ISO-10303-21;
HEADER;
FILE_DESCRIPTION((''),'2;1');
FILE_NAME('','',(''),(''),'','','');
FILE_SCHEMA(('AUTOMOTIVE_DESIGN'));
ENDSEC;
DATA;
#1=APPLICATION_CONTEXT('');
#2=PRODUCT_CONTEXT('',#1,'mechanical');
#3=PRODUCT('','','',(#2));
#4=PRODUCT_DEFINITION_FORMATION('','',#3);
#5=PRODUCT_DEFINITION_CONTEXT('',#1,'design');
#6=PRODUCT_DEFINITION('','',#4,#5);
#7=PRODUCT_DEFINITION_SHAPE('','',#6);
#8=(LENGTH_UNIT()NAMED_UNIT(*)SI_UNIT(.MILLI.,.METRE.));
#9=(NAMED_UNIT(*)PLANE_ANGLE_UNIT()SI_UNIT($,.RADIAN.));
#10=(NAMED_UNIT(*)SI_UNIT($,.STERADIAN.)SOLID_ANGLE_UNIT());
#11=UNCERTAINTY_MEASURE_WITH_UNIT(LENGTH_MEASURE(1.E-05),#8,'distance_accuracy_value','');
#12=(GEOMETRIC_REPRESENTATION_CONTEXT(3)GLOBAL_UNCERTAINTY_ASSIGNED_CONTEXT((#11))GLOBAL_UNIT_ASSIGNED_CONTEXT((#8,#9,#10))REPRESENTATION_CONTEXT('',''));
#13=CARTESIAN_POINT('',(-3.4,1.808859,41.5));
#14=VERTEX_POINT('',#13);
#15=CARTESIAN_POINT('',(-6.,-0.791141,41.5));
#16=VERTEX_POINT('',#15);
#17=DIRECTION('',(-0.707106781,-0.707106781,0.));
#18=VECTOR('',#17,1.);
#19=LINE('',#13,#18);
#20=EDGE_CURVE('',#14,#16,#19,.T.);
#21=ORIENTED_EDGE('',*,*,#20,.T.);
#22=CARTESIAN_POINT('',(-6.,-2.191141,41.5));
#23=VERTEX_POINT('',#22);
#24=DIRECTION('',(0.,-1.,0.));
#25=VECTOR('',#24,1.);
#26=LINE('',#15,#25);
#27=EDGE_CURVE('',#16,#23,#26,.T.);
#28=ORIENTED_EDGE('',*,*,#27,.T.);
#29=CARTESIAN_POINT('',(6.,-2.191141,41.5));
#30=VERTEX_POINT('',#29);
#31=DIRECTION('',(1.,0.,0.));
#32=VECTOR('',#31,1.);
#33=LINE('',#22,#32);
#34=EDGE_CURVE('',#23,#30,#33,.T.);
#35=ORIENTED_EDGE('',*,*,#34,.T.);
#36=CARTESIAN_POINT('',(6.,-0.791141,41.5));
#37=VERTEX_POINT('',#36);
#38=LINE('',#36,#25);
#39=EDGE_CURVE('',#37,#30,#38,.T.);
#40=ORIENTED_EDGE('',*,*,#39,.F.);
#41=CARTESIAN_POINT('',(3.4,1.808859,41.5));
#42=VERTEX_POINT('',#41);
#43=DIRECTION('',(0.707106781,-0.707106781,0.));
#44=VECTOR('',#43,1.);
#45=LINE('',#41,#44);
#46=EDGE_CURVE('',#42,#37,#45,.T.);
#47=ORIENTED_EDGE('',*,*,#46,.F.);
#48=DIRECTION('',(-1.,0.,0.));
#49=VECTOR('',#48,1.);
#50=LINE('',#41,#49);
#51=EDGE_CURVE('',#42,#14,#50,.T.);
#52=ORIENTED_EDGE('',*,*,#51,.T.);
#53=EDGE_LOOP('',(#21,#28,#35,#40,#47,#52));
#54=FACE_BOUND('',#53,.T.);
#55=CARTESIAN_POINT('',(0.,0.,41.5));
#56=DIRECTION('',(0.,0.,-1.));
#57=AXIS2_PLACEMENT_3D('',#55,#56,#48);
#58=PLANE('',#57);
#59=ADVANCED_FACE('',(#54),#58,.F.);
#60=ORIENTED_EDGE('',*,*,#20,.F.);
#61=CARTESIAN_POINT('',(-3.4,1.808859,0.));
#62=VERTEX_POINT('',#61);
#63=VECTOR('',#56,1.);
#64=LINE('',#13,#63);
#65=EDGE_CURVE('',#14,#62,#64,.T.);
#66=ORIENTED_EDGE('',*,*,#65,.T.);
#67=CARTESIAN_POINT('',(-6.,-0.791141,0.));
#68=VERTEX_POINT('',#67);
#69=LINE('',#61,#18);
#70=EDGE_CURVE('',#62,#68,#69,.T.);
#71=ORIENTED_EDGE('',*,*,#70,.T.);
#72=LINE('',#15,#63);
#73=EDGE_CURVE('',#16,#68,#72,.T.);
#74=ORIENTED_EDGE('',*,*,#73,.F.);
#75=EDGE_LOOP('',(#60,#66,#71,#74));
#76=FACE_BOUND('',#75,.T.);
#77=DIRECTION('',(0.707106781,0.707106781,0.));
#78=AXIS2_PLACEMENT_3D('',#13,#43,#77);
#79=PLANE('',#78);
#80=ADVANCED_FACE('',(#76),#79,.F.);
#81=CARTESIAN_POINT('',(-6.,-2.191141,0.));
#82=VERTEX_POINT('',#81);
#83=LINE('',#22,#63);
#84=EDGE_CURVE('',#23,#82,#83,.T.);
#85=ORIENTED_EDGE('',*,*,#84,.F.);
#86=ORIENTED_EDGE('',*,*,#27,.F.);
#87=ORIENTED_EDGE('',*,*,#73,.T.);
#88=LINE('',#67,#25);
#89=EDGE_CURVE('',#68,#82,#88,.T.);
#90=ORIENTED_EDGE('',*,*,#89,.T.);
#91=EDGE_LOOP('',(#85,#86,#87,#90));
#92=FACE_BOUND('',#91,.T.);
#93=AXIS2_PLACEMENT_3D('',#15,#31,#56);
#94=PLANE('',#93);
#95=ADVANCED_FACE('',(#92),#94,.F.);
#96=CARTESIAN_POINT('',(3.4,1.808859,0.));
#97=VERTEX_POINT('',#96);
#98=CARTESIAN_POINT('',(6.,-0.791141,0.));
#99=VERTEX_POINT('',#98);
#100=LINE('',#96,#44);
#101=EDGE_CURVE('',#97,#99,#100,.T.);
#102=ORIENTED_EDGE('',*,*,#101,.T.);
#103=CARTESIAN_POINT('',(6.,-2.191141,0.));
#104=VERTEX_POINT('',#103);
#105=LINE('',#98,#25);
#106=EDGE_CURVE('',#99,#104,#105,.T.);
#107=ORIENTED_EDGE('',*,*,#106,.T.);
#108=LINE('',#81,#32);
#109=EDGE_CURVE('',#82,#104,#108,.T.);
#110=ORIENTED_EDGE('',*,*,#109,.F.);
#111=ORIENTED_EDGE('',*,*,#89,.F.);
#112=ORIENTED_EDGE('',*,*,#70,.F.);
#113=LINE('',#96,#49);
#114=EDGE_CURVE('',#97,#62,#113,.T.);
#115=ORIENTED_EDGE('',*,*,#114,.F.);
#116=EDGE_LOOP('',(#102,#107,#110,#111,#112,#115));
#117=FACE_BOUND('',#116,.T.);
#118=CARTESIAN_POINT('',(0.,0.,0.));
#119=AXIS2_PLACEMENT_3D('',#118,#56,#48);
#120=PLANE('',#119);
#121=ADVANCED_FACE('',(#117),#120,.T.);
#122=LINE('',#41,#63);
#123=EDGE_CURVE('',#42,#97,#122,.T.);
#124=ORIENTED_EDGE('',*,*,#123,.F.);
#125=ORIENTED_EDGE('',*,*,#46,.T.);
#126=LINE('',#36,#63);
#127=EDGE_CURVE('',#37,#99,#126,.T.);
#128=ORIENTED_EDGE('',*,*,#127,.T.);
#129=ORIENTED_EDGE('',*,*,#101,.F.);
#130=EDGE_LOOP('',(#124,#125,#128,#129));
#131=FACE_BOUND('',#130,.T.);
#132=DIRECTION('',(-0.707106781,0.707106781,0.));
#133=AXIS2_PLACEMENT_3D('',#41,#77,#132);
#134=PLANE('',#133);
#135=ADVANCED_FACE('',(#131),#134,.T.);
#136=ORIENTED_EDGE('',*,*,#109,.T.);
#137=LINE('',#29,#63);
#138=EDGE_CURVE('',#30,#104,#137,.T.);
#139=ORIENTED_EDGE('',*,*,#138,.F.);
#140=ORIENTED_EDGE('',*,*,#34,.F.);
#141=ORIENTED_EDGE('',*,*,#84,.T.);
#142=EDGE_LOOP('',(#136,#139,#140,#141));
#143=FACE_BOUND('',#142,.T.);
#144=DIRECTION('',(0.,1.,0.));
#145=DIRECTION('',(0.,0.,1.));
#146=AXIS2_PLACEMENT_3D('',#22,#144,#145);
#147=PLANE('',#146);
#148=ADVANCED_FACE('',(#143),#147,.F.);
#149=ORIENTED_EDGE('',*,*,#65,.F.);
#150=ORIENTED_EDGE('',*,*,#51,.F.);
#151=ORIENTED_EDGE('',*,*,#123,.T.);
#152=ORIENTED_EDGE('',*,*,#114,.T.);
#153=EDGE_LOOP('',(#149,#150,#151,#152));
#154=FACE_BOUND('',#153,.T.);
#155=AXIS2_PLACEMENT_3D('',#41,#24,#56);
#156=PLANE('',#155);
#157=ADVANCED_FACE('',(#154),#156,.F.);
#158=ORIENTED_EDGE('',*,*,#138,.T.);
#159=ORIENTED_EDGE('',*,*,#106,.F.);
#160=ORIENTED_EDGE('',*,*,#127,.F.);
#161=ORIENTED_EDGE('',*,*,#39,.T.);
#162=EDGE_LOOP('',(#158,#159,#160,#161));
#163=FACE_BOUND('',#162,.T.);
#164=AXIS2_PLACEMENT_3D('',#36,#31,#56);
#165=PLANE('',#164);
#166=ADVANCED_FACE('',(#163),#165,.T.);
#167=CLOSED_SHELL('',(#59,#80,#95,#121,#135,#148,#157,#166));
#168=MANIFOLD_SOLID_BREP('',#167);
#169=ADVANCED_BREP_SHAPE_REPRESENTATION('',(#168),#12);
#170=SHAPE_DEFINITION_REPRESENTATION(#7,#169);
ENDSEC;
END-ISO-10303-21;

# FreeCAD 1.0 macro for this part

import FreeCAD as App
import Part
import Sketcher
from FreeCAD import Vector

doc = App.newDocument("Part")
body = doc.addObject("PartDesign::Body", "Body")

# Sketch on XY plane
sketch1 = body.newObject("Sketcher::SketchObject", "Sketch")
sketch1.AttachmentSupport = (doc.getObject("XY_Plane"), [""])
sketch1.MapMode = "FlatFace"
sketch1.addGeometry([
    Part.LineSegment(Vector(3.4, 1.8, 0), Vector(-3.4, 1.8, 0)),  # 0
    Part.LineSegment(Vector(-3.4, 1.8, 0), Vector(-6, -0.8, 0)),  # 1
    Part.LineSegment(Vector(-6, -0.8, 0), Vector(-6, -2.2, 0)),  # 2
    Part.LineSegment(Vector(-6, -2.2, 0), Vector(6, -2.2, 0)),  # 3
    Part.LineSegment(Vector(6, -2.2, 0), Vector(6, -0.8, 0)),  # 4
    Part.LineSegment(Vector(6, -0.8, 0), Vector(3.4, 1.8, 0)),  # 5
], False)
sketch1.addConstraint([
    Sketcher.Constraint("Coincident", 0, 2, 1, 1),
    Sketcher.Constraint("Coincident", 1, 2, 2, 1),
    Sketcher.Constraint("Coincident", 2, 2, 3, 1),
    Sketcher.Constraint("Coincident", 3, 2, 4, 1),
    Sketcher.Constraint("Coincident", 4, 2, 5, 1),
    Sketcher.Constraint("Coincident", 5, 2, 0, 1),
    Sketcher.Constraint("Horizontal", 0),
    Sketcher.Constraint("Vertical", 2),
    Sketcher.Constraint("Horizontal", 3),
    Sketcher.Constraint("Vertical", 4),
    Sketcher.Constraint("Symmetric", 1, 2, 4, 2, -2),
    Sketcher.Constraint("Perpendicular", 1, 5),
    Sketcher.Constraint("Equal", 1, 5),
    Sketcher.Constraint("DistanceX", 3, 1, 3, 2, 12.0),
    Sketcher.Constraint("DistanceX", 0, 2, 0, 1, 6.8),
    Sketcher.Constraint("DistanceY", 2, 2, 2, 1, 1.4),
    Sketcher.Constraint("DistanceY", -1, 1, 0, 2, 1.808859),
])
pad1 = body.newObject("PartDesign::Pad", "Pad")
pad1.Profile = sketch1
pad1.Length = 41.5

doc.recompute()
